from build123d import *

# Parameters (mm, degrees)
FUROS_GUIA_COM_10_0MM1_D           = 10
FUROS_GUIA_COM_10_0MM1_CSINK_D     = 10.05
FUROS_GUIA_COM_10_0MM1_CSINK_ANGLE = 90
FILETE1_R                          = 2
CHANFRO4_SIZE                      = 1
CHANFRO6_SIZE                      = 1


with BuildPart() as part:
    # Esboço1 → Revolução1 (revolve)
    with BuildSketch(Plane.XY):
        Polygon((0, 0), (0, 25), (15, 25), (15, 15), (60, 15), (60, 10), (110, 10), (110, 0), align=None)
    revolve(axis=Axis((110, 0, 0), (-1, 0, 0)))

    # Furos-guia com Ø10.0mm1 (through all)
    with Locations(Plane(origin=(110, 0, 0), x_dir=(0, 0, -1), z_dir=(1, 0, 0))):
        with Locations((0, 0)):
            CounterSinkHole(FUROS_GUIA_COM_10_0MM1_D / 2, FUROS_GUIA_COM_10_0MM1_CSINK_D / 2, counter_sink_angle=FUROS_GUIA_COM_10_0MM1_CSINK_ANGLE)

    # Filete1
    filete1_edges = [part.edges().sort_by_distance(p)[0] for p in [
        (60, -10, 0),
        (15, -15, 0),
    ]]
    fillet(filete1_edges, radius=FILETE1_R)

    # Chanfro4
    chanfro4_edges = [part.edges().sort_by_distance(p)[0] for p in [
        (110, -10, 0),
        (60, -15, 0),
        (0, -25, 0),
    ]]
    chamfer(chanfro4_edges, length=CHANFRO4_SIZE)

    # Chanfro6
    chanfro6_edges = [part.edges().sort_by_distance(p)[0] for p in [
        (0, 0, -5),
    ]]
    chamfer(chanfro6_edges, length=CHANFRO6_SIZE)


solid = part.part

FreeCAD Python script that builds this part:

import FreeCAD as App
import Part
import Sketcher
from FreeCAD import Vector


def edges_at(feature, points):
    """Names of the edges that pass closest to the given points."""
    edges = feature.Shape.Edges
    near = lambda p: min(range(len(edges)), key=lambda i: edges[i].distToShape(Part.Vertex(*p))[0])
    return sorted({f"Edge{near(p) + 1}" for p in points})


def add_polygon(sketch, points):
    """Adds a closed chain of lines whose ends are joined by coincident constraints."""
    first, n = sketch.GeometryCount, len(points)
    for a, b in zip(points, points[1:] + points[:1]):
        sketch.addGeometry(Part.LineSegment(App.Vector(*a, 0), App.Vector(*b, 0)), False)
    for i in range(n):
        sketch.addConstraint(Sketcher.Constraint("Coincident", first + i, 2, first + (i + 1) % n, 1))

doc = App.newDocument("Part")
body = doc.addObject("PartDesign::Body", "Body")

# Sketch on XY plane
sketch1 = body.newObject("Sketcher::SketchObject", "Sketch")
sketch1.AttachmentSupport = (doc.getObject("XY_Plane"), [""])
sketch1.MapMode = "FlatFace"
add_polygon(sketch1, [(0, 25), (0, 0), (110, 0), (110, 10), (60, 10), (60, 15), (15, 15), (15, 25)])  # lines 0-7
sketch1.addConstraint([
    Sketcher.Constraint("Vertical", 0),
    Sketcher.Constraint("Horizontal", 1),
    Sketcher.Constraint("Vertical", 2),
    Sketcher.Constraint("Horizontal", 3),
    Sketcher.Constraint("Vertical", 4),
    Sketcher.Constraint("Horizontal", 5),
    Sketcher.Constraint("Vertical", 6),
    Sketcher.Constraint("Horizontal", 7),
    Sketcher.Constraint("Coincident", 0, 2, -1, 1),
    Sketcher.Constraint("Equal", 2, 6),
    Sketcher.Constraint("DistanceX", 1, 1, 1, 2, 110.0),
    Sketcher.Constraint("DistanceX", 3, 2, 3, 1, 50.0),
    Sketcher.Constraint("DistanceX", 5, 2, 5, 1, 45.0),
    Sketcher.Constraint("DistanceY", 0, 2, 0, 1, 25.0),
    Sketcher.Constraint("DistanceY", 2, 1, 2, 2, 10.0),
])
revolution = body.newObject("PartDesign::Revolution", "Revolution")
revolution.Profile = sketch1
revolution.ReferenceAxis = (sketch1, ["H_Axis"])
revolution.Angle = 360

# Sketch on YZ plane
sketch2 = body.newObject("Sketcher::SketchObject", "Sketch001")
sketch2.AttachmentSupport = (doc.getObject("YZ_Plane"), [""])
sketch2.MapMode = "FlatFace"
sketch2.AttachmentOffset = App.Placement(Vector(0, 0, 110), App.Rotation())
sketch2.addGeometry(Part.Circle(Vector(0, 0, 0), Vector(0, 0, 1), 5), False)
sketch2.addConstraint([
    Sketcher.Constraint("Coincident", 0, 3, -1, 1),
    Sketcher.Constraint("Diameter", 0, 10.0),
])
doc.recompute()
hole = body.newObject("PartDesign::Hole", "Hole")
hole.Profile = sketch2
hole.ThreadType = "None"
hole.Diameter = 10
hole.DepthType = "ThroughAll"
hole.HoleCutType = "Countersink"
hole.HoleCutDiameter = 10.05
hole.HoleCutCountersinkAngle = 90
doc.recompute()

fillet = body.newObject("PartDesign::Fillet", "Fillet")
fillet.Base = (hole, edges_at(hole, [(60, -10, 0), (15, -15, 0)]))
fillet.Radius = 2
doc.recompute()

chamfer = body.newObject("PartDesign::Chamfer", "Chamfer")
chamfer.Base = (fillet, edges_at(fillet, [(110, -10, 0), (60, -15, 0), (0, -25, 0)]))
chamfer.Size = 1
doc.recompute()

chamfer2 = body.newObject("PartDesign::Chamfer", "Chamfer001")
chamfer2.Base = (chamfer, edges_at(chamfer, [(0, 0, -5)]))
chamfer2.Size = 1

doc.recompute()
